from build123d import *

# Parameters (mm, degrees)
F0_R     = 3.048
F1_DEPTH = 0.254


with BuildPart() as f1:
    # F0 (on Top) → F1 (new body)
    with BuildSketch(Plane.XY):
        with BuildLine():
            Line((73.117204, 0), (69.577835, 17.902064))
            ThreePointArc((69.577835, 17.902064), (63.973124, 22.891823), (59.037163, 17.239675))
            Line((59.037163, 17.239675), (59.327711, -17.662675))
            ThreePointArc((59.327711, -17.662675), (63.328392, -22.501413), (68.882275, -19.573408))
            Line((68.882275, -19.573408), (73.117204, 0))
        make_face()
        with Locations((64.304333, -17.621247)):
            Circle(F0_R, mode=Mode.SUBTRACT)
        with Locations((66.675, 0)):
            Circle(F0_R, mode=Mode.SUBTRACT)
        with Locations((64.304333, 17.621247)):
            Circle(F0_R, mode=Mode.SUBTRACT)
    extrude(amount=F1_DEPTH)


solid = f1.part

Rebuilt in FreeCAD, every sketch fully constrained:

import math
import FreeCAD as App
import Part
import Sketcher
from FreeCAD import Vector
Q = App.Units.Quantity

doc = App.newDocument("Part")
body = doc.addObject("PartDesign::Body", "Body")

sketch1 = body.newObject("Sketcher::SketchObject", "Sketch")
sketch1.AttachmentSupport = (doc.getObject("XY_Plane"), [""])
sketch1.MapMode = "FlatFace"
sketch1.addGeometry(Part.LineSegment(Vector(73.117204, 0, 0), Vector(69.577835, 17.902064, 0)), False)
sketch1.addGeometry(Part.ArcOfCircle(Part.Circle(Vector(64.304333, 17.621246, 0), Vector(0, 0, 1), 5.280973), math.radians(3.048163), math.radians(184.143457)), False)
sketch1.addGeometry(Part.LineSegment(Vector(59.037163, 17.239675, 0), Vector(59.327711, -17.662675, 0)), False)
sketch1.addGeometry(Part.ArcOfCircle(Part.Circle(Vector(64.304333, -17.621247, 0), Vector(0, 0, 1), 4.976795), math.radians(-179.523047), math.radians(-23.094745)), False)
sketch1.addGeometry(Part.LineSegment(Vector(68.882275, -19.573408, 0), Vector(73.117204, 0, 0)), False)
sketch1.addGeometry(Part.Circle(Vector(64.304333, -17.621247, 0), Vector(0, 0, 1), 3.048), False)
sketch1.addGeometry(Part.Circle(Vector(64.304333, 17.621247, 0), Vector(0, 0, 1), 3.048), False)
sketch1.addGeometry(Part.Circle(Vector(66.675, 0, 0), Vector(0, 0, 1), 3.048), False)
sketch1.addConstraint(Sketcher.Constraint("Coincident", 0, 2, 1, 1))
sketch1.addConstraint(Sketcher.Constraint("Coincident", 1, 2, 2, 1))
sketch1.addConstraint(Sketcher.Constraint("Tangent", 2, 2, 3, 1))
sketch1.addConstraint(Sketcher.Constraint("Coincident", 3, 2, 4, 1))
sketch1.addConstraint(Sketcher.Constraint("Coincident", 4, 2, 0, 1))
sketch1.addConstraint(Sketcher.Constraint("Coincident", 5, 3, 3, 3))
sketch1.addConstraint(Sketcher.Constraint("Coincident", 6, 3, 1, 3))
sketch1.addConstraint(Sketcher.Constraint("Equal", 5, 6))
sketch1.addConstraint(Sketcher.Constraint("Equal", 6, 7))
sketch1.addConstraint(Sketcher.Constraint("Symmetric", 1, 3, 3, 3, -1))
sketch1.addConstraint(Sketcher.Constraint("PointOnObject", 7, 3, -1))
sketch1.addConstraint(Sketcher.Constraint("PointOnObject", 4, 2, -1))
sketch1.addConstraint(Sketcher.Constraint("Diameter", 5, Q("0.24 in")))
sketch1.addConstraint(Sketcher.Constraint("DistanceX", -1, 1, 7, 3, Q("2.625 in")))
sketch1.addConstraint(Sketcher.Constraint("Radius", 1, 5.280973))
sketch1.addConstraint(Sketcher.Constraint("Radius", 3, 4.976795))
sketch1.addConstraint(Sketcher.Constraint("DistanceX", 1, 3, 0, 2, 5.273502))
sketch1.addConstraint(Sketcher.Constraint("Distance", 0, 18.24859))
sketch1.addConstraint(Sketcher.Constraint("Distance", 2, 34.903559))
sketch1.addConstraint(Sketcher.Constraint("DistanceX", -1, 1, 2, 2, 59.327711))
sketch1.addConstraint(Sketcher.Constraint("DistanceY", 3, 3, 0, 2, 35.523311))
sketch1.addConstraint(Sketcher.Constraint("DistanceX", 3, 3, 3, 2, 4.577942))
pad1 = body.newObject("PartDesign::Pad", "Pad")
pad1.Profile = sketch1
pad1.Length = Q("0.01 in")

doc.recompute()
